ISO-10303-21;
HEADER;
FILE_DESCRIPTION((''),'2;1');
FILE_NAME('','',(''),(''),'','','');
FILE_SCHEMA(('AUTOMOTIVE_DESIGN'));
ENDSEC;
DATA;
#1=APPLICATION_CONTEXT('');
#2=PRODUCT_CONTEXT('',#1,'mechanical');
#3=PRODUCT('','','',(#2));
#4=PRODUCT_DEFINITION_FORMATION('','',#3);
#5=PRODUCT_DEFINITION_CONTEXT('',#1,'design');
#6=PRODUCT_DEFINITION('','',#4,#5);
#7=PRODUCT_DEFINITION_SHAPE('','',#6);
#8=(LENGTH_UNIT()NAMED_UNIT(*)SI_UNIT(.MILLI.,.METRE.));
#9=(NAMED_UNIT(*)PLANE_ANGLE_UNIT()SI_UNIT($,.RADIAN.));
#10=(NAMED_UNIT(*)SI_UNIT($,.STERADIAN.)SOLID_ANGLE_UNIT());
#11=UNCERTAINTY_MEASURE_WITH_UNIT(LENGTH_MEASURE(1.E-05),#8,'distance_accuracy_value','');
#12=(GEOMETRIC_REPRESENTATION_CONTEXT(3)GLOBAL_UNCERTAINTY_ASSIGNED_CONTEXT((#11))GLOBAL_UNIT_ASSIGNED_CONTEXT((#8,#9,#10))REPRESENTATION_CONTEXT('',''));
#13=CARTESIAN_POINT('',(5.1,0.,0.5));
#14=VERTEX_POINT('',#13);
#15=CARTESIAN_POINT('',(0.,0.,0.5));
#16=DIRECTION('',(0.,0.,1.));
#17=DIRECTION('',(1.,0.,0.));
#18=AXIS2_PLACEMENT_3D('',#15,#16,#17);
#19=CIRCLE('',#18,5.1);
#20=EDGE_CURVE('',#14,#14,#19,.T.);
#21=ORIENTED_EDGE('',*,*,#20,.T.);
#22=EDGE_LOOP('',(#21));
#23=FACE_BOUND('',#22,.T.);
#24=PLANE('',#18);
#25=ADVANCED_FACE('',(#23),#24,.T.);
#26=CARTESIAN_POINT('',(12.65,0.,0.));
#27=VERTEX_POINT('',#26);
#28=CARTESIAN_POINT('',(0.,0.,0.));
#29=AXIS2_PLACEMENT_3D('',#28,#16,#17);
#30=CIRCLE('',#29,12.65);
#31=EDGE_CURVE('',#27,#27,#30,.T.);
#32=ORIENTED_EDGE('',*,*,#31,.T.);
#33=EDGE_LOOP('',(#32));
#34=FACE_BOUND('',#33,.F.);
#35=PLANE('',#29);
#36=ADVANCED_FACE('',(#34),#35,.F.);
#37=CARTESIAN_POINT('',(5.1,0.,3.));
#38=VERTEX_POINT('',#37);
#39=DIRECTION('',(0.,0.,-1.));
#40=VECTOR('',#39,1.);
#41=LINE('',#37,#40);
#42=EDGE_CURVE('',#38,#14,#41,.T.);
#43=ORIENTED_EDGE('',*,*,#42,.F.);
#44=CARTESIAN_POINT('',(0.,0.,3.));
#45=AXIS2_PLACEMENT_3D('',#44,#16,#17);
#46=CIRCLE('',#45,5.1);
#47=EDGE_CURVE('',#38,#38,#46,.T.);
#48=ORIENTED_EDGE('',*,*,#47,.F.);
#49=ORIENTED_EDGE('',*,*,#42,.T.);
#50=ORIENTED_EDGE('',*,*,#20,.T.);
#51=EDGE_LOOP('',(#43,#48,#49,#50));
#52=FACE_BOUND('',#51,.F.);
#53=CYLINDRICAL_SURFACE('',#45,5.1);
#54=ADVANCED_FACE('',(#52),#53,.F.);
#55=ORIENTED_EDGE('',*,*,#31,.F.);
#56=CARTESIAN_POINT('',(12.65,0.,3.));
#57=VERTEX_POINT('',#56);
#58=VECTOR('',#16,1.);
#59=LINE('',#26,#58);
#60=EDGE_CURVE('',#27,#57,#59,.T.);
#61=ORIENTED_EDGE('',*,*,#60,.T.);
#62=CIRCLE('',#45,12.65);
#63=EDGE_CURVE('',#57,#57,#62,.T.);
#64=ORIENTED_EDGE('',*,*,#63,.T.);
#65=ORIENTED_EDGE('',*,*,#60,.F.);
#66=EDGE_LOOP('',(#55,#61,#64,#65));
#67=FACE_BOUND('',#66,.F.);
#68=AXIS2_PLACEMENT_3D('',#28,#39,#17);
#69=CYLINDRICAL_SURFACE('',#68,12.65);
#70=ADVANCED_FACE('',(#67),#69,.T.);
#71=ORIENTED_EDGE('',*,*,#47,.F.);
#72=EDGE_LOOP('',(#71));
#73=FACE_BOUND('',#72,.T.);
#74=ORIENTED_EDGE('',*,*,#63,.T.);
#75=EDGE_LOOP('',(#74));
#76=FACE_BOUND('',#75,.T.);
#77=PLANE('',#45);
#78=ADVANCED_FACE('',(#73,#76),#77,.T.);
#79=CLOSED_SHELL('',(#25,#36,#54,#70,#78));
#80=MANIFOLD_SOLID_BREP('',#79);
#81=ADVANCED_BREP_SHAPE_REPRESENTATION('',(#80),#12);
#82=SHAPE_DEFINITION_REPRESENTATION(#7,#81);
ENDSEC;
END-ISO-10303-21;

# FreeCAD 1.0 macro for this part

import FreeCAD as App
import Part
import Sketcher
from FreeCAD import Vector

doc = App.newDocument("Part")
params = doc.addObject("Spreadsheet::Sheet", "Params")
for row, (alias, value) in enumerate([
    ("sketch1_diameter", "25.3 mm"),
    ("pad1_length", "3 mm"),
    ("sketch2_diameter", "10.2 mm"),
    ("pocket1_length", "2.5 mm"),
], start=1):
    params.set(f"A{row}", alias)
    params.set(f"B{row}", "=" + value)
    params.setAlias(f"B{row}", alias)

body = doc.addObject("PartDesign::Body", "Body")

# Sketch on XY plane
sketch1 = body.newObject("Sketcher::SketchObject", "Sketch")
sketch1.AttachmentSupport = (doc.getObject("XY_Plane"), [""])
sketch1.MapMode = "FlatFace"
sketch1.addGeometry(Part.Circle(Vector(0, 0, 0), Vector(0, 0, 1), 13), False)
sketch1.addConstraint(Sketcher.Constraint("Coincident", 0, 3, -1, 1))
sketch1.addConstraint(Sketcher.Constraint("Diameter", 0, 25.3))
sketch1.setExpression("Constraints[1]", "Params.sketch1_diameter")
pad1 = body.newObject("PartDesign::Pad", "Pad")
pad1.Profile = sketch1
pad1.setExpression("Length", "Params.pad1_length")

# Sketch on XY plane
sketch2 = body.newObject("Sketcher::SketchObject", "Sketch001")
sketch2.AttachmentSupport = (doc.getObject("XY_Plane"), [""])
sketch2.MapMode = "FlatFace"
sketch2.AttachmentOffset = App.Placement(Vector(0, 0, 3), App.Rotation())
sketch2.addGeometry(Part.Circle(Vector(0, 0, 0), Vector(0, 0, 1), 5), False)
sketch2.addConstraint(Sketcher.Constraint("Coincident", 0, 3, -1, 1))
sketch2.addConstraint(Sketcher.Constraint("Diameter", 0, 10.2))
sketch2.setExpression("Constraints[1]", "Params.sketch2_diameter")
pocket1 = body.newObject("PartDesign::Pocket", "Pocket")
pocket1.Profile = sketch2
pocket1.setExpression("Length", "Params.pocket1_length")

doc.recompute()
